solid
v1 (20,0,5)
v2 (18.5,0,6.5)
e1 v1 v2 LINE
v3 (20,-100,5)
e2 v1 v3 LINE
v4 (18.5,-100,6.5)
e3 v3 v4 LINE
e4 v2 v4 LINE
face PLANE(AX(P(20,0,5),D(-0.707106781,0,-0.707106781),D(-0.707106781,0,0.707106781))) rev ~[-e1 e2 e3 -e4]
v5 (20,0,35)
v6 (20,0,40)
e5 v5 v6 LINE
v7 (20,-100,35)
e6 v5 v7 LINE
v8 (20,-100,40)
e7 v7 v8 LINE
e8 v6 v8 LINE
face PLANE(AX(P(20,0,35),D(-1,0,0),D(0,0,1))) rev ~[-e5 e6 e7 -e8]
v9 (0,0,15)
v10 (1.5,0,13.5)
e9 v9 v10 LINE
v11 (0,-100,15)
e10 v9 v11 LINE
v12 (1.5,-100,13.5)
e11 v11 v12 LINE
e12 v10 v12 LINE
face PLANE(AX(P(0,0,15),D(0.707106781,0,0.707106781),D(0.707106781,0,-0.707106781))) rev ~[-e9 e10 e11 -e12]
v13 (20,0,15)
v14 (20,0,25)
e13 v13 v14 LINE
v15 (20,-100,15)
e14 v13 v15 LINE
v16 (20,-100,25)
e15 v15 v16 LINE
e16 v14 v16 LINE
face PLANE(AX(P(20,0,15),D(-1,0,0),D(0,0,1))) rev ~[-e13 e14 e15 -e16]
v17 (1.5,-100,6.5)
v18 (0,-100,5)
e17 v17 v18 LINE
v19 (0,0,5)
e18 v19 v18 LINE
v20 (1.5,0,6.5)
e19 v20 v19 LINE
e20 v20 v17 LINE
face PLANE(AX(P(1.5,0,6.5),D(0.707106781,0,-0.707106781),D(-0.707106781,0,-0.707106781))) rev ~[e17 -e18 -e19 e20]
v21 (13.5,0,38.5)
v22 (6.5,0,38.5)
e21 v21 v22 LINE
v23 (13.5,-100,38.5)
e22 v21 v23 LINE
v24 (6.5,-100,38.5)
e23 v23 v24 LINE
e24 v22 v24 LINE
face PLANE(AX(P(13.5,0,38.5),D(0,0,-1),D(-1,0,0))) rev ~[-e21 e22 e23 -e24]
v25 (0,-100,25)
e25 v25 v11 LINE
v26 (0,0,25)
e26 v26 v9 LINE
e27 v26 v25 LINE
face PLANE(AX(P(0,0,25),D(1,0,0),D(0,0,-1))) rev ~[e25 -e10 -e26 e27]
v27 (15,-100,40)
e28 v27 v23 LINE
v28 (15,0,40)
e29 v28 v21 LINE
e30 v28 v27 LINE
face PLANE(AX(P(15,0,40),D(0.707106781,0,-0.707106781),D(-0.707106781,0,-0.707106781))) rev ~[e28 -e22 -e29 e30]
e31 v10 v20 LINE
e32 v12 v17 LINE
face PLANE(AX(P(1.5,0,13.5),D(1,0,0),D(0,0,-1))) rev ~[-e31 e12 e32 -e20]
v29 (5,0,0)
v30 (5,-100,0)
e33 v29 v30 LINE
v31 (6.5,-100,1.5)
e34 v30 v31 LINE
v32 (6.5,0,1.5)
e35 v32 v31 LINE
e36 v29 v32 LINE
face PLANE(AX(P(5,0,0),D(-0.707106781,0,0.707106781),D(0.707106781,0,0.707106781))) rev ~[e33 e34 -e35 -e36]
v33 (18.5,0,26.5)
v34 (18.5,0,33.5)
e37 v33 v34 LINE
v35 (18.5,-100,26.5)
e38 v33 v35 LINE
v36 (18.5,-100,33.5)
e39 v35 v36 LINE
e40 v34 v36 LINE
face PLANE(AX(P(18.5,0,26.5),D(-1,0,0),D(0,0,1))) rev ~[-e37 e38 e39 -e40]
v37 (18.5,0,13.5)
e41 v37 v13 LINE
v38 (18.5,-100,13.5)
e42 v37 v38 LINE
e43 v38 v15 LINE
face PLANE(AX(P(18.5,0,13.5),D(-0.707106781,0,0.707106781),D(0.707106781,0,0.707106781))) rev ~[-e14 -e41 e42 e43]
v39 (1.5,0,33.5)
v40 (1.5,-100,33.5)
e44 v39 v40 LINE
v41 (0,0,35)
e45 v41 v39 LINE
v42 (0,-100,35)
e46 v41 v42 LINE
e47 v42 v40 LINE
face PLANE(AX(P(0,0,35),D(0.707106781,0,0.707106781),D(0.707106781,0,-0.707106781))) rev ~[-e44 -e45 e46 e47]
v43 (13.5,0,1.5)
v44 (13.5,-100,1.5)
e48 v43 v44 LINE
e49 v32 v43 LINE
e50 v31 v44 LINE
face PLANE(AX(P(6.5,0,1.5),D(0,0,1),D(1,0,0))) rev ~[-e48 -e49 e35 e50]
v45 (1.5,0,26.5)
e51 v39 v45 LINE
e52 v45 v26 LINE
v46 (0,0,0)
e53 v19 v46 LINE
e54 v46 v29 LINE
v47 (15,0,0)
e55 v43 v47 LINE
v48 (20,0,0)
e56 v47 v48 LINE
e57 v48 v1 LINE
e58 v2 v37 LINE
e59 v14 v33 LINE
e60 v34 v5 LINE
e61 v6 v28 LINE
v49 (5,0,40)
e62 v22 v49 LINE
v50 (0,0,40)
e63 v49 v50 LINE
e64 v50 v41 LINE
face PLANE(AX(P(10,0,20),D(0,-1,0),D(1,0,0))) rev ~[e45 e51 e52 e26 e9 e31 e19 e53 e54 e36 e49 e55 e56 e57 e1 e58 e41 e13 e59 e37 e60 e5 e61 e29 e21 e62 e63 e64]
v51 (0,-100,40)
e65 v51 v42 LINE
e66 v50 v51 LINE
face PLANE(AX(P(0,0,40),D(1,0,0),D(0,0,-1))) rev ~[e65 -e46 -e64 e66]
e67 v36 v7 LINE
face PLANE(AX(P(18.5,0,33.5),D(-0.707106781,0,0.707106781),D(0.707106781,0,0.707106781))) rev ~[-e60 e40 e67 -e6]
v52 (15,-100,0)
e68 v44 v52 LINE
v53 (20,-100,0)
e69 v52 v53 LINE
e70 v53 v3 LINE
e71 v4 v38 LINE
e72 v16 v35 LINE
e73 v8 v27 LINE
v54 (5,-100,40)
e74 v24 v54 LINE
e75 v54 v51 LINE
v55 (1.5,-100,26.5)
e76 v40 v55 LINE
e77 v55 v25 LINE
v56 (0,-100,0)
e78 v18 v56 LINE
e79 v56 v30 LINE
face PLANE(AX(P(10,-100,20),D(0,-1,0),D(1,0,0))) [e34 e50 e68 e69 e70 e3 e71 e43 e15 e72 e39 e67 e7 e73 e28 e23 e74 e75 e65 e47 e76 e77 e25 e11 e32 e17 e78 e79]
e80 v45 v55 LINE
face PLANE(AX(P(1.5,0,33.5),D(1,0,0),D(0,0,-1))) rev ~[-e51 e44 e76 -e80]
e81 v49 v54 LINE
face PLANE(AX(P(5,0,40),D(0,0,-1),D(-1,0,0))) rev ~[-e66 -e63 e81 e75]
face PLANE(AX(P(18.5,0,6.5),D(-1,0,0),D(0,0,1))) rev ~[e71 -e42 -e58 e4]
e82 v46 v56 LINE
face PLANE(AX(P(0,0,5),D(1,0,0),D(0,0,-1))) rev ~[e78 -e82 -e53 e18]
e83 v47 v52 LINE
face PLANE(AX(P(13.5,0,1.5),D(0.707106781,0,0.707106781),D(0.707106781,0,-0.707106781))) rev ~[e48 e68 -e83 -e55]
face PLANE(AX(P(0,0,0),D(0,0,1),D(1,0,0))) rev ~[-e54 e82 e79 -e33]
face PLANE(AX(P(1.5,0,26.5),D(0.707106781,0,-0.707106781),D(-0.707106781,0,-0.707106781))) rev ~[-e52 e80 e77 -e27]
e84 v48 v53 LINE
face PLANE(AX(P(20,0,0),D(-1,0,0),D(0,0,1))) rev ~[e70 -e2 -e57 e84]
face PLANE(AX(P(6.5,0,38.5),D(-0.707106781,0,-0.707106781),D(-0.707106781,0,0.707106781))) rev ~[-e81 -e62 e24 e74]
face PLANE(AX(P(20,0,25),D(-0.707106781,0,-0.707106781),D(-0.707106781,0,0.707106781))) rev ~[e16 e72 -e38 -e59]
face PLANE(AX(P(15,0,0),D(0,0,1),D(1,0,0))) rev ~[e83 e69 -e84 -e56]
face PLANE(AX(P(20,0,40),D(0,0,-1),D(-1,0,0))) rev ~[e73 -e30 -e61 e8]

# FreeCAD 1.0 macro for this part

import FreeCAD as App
import Part
import Sketcher
Q = App.Units.Quantity

doc = App.newDocument("Part")
body = doc.addObject("PartDesign::Body", "Body")

# Sketch on XZ plane
sketch1 = body.newObject("Sketcher::SketchObject", "Sketch")
sketch1.AttachmentSupport = (doc.getObject("XZ_Plane"), [""])
sketch1.MapMode = "FlatFace"
sketch1.addGeometry([
    Part.LineSegment(App.Vector(0, 5, 0), App.Vector(0, 0, 0)),  # 0
    Part.LineSegment(App.Vector(0, 0, 0), App.Vector(5, 0, 0)),  # 1
    Part.LineSegment(App.Vector(5, 0, 0), App.Vector(6.5, 1.5, 0)),  # 2
    Part.LineSegment(App.Vector(6.5, 1.5, 0), App.Vector(13.5, 1.5, 0)),  # 3
    Part.LineSegment(App.Vector(13.5, 1.5, 0), App.Vector(15, 0, 0)),  # 4
    Part.LineSegment(App.Vector(15, 0, 0), App.Vector(20, 0, 0)),  # 5
    Part.LineSegment(App.Vector(20, 0, 0), App.Vector(20, 5, 0)),  # 6
    Part.LineSegment(App.Vector(20, 5, 0), App.Vector(18.5, 6.5, 0)),  # 7
    Part.LineSegment(App.Vector(18.5, 6.5, 0), App.Vector(18.5, 13.5, 0)),  # 8
    Part.LineSegment(App.Vector(18.5, 13.5, 0), App.Vector(20, 15, 0)),  # 9
    Part.LineSegment(App.Vector(20, 15, 0), App.Vector(20, 25, 0)),  # 10
    Part.LineSegment(App.Vector(20, 25, 0), App.Vector(18.5, 26.5, 0)),  # 11
    Part.LineSegment(App.Vector(18.5, 26.5, 0), App.Vector(18.5, 33.5, 0)),  # 12
    Part.LineSegment(App.Vector(18.5, 33.5, 0), App.Vector(20, 35, 0)),  # 13
    Part.LineSegment(App.Vector(20, 35, 0), App.Vector(20, 40, 0)),  # 14
    Part.LineSegment(App.Vector(20, 40, 0), App.Vector(15, 40, 0)),  # 15
    Part.LineSegment(App.Vector(15, 40, 0), App.Vector(13.5, 38.5, 0)),  # 16
    Part.LineSegment(App.Vector(13.5, 38.5, 0), App.Vector(6.5, 38.5, 0)),  # 17
    Part.LineSegment(App.Vector(6.5, 38.5, 0), App.Vector(5, 40, 0)),  # 18
    Part.LineSegment(App.Vector(5, 40, 0), App.Vector(0, 40, 0)),  # 19
    Part.LineSegment(App.Vector(0, 40, 0), App.Vector(0, 35, 0)),  # 20
    Part.LineSegment(App.Vector(0, 35, 0), App.Vector(1.5, 33.5, 0)),  # 21
    Part.LineSegment(App.Vector(1.5, 33.5, 0), App.Vector(1.5, 26.5, 0)),  # 22
    Part.LineSegment(App.Vector(1.5, 26.5, 0), App.Vector(0, 25, 0)),  # 23
    Part.LineSegment(App.Vector(0, 25, 0), App.Vector(0, 15, 0)),  # 24
    Part.LineSegment(App.Vector(0, 15, 0), App.Vector(1.5, 13.5, 0)),  # 25
    Part.LineSegment(App.Vector(1.5, 13.5, 0), App.Vector(1.5, 6.5, 0)),  # 26
    Part.LineSegment(App.Vector(1.5, 6.5, 0), App.Vector(0, 5, 0)),  # 27
], False)
sketch1.addConstraint([
    Sketcher.Constraint("Coincident", 0, 2, 1, 1),
    Sketcher.Constraint("Coincident", 1, 2, 2, 1),
    Sketcher.Constraint("Coincident", 2, 2, 3, 1),
    Sketcher.Constraint("Coincident", 3, 2, 4, 1),
    Sketcher.Constraint("Coincident", 4, 2, 5, 1),
    Sketcher.Constraint("Coincident", 5, 2, 6, 1),
    Sketcher.Constraint("Coincident", 6, 2, 7, 1),
    Sketcher.Constraint("Coincident", 7, 2, 8, 1),
    Sketcher.Constraint("Coincident", 8, 2, 9, 1),
    Sketcher.Constraint("Coincident", 9, 2, 10, 1),
    Sketcher.Constraint("Coincident", 10, 2, 11, 1),
    Sketcher.Constraint("Coincident", 11, 2, 12, 1),
    Sketcher.Constraint("Coincident", 12, 2, 13, 1),
    Sketcher.Constraint("Coincident", 13, 2, 14, 1),
    Sketcher.Constraint("Coincident", 14, 2, 15, 1),
    Sketcher.Constraint("Coincident", 15, 2, 16, 1),
    Sketcher.Constraint("Coincident", 16, 2, 17, 1),
    Sketcher.Constraint("Coincident", 17, 2, 18, 1),
    Sketcher.Constraint("Coincident", 18, 2, 19, 1),
    Sketcher.Constraint("Coincident", 19, 2, 20, 1),
    Sketcher.Constraint("Coincident", 20, 2, 21, 1),
    Sketcher.Constraint("Coincident", 21, 2, 22, 1),
    Sketcher.Constraint("Coincident", 22, 2, 23, 1),
    Sketcher.Constraint("Coincident", 23, 2, 24, 1),
    Sketcher.Constraint("Coincident", 24, 2, 25, 1),
    Sketcher.Constraint("Coincident", 25, 2, 26, 1),
    Sketcher.Constraint("Coincident", 26, 2, 27, 1),
    Sketcher.Constraint("Coincident", 27, 2, 0, 1),
    Sketcher.Constraint("Vertical", 0),
    Sketcher.Constraint("Horizontal", 1),
    Sketcher.Constraint("Horizontal", 3),
    Sketcher.Constraint("Horizontal", 5),
    Sketcher.Constraint("Vertical", 6),
    Sketcher.Constraint("Vertical", 8),
    Sketcher.Constraint("Vertical", 10),
    Sketcher.Constraint("Vertical", 12),
    Sketcher.Constraint("Vertical", 14),
    Sketcher.Constraint("Horizontal", 15),
    Sketcher.Constraint("Horizontal", 17),
    Sketcher.Constraint("Horizontal", 19),
    Sketcher.Constraint("Vertical", 20),
    Sketcher.Constraint("Vertical", 22),
    Sketcher.Constraint("Vertical", 24),
    Sketcher.Constraint("Vertical", 26),
    Sketcher.Constraint("Coincident", 0, 2, -1, 1),
    Sketcher.Constraint("PointOnObject", 4, 2, -1),
    Sketcher.Constraint("PointOnObject", 19, 2, -2),
    Sketcher.Constraint("PointOnObject", 23, 2, -2),
    Sketcher.Constraint("Perpendicular", 2, 4),
    Sketcher.Constraint("Parallel", 4, 7),
    Sketcher.Constraint("Perpendicular", 7, 9),
    Sketcher.Constraint("Perpendicular", 9, 11),
    Sketcher.Constraint("Perpendicular", 11, 13),
    Sketcher.Constraint("Parallel", 13, 16),
    Sketcher.Constraint("Perpendicular", 16, 18),
    Sketcher.Constraint("Parallel", 18, 21),
    Sketcher.Constraint("Perpendicular", 21, 23),
    Sketcher.Constraint("Perpendicular", 23, 25),
    Sketcher.Constraint("Perpendicular", 25, 27),
    Sketcher.Constraint("Horizontal", 15, 2, 18, 2),
    Sketcher.Constraint("Horizontal", 13, 2, 20, 2),
    Sketcher.Constraint("Horizontal", 12, 2, 21, 2),
    Sketcher.Constraint("Horizontal", 11, 2, 22, 2),
    Sketcher.Constraint("Horizontal", 10, 2, 23, 2),
    Sketcher.Constraint("Horizontal", 9, 2, 24, 2),
    Sketcher.Constraint("Horizontal", 8, 2, 25, 2),
    Sketcher.Constraint("Horizontal", 7, 2, 26, 2),
    Sketcher.Constraint("Horizontal", 6, 2, 27, 2),
    Sketcher.Constraint("Vertical", 6, 2, 9, 2),
    Sketcher.Constraint("Vertical", 8, 2, 11, 2),
    Sketcher.Constraint("Vertical", 4, 2, 15, 2),
    Sketcher.Constraint("Vertical", 3, 2, 16, 2),
    Sketcher.Constraint("Vertical", 2, 2, 17, 2),
    Sketcher.Constraint("Equal", 1, 5),
    Sketcher.Constraint("Equal", 19, 0),
    Sketcher.Constraint("Equal", 17, 8),
    Sketcher.Constraint("Equal", 8, 12),
    Sketcher.Constraint("Equal", 6, 14),
    Sketcher.Constraint("Equal", 4, 7),
    Sketcher.Constraint("DistanceX", 1, 1, 1, 2, Q("5 mm")),
    Sketcher.Constraint("DistanceX", 3, 1, 3, 2, Q("7 mm")),
    Sketcher.Constraint("DistanceY", 10, 1, 10, 2, Q("10 mm")),
    Sketcher.Constraint("DistanceX", -1, 1, 4, 2, Q("15 mm")),
])
pad1 = body.newObject("PartDesign::Pad", "Pad")
pad1.Profile = sketch1
pad1.Length = 100

doc.recompute()
